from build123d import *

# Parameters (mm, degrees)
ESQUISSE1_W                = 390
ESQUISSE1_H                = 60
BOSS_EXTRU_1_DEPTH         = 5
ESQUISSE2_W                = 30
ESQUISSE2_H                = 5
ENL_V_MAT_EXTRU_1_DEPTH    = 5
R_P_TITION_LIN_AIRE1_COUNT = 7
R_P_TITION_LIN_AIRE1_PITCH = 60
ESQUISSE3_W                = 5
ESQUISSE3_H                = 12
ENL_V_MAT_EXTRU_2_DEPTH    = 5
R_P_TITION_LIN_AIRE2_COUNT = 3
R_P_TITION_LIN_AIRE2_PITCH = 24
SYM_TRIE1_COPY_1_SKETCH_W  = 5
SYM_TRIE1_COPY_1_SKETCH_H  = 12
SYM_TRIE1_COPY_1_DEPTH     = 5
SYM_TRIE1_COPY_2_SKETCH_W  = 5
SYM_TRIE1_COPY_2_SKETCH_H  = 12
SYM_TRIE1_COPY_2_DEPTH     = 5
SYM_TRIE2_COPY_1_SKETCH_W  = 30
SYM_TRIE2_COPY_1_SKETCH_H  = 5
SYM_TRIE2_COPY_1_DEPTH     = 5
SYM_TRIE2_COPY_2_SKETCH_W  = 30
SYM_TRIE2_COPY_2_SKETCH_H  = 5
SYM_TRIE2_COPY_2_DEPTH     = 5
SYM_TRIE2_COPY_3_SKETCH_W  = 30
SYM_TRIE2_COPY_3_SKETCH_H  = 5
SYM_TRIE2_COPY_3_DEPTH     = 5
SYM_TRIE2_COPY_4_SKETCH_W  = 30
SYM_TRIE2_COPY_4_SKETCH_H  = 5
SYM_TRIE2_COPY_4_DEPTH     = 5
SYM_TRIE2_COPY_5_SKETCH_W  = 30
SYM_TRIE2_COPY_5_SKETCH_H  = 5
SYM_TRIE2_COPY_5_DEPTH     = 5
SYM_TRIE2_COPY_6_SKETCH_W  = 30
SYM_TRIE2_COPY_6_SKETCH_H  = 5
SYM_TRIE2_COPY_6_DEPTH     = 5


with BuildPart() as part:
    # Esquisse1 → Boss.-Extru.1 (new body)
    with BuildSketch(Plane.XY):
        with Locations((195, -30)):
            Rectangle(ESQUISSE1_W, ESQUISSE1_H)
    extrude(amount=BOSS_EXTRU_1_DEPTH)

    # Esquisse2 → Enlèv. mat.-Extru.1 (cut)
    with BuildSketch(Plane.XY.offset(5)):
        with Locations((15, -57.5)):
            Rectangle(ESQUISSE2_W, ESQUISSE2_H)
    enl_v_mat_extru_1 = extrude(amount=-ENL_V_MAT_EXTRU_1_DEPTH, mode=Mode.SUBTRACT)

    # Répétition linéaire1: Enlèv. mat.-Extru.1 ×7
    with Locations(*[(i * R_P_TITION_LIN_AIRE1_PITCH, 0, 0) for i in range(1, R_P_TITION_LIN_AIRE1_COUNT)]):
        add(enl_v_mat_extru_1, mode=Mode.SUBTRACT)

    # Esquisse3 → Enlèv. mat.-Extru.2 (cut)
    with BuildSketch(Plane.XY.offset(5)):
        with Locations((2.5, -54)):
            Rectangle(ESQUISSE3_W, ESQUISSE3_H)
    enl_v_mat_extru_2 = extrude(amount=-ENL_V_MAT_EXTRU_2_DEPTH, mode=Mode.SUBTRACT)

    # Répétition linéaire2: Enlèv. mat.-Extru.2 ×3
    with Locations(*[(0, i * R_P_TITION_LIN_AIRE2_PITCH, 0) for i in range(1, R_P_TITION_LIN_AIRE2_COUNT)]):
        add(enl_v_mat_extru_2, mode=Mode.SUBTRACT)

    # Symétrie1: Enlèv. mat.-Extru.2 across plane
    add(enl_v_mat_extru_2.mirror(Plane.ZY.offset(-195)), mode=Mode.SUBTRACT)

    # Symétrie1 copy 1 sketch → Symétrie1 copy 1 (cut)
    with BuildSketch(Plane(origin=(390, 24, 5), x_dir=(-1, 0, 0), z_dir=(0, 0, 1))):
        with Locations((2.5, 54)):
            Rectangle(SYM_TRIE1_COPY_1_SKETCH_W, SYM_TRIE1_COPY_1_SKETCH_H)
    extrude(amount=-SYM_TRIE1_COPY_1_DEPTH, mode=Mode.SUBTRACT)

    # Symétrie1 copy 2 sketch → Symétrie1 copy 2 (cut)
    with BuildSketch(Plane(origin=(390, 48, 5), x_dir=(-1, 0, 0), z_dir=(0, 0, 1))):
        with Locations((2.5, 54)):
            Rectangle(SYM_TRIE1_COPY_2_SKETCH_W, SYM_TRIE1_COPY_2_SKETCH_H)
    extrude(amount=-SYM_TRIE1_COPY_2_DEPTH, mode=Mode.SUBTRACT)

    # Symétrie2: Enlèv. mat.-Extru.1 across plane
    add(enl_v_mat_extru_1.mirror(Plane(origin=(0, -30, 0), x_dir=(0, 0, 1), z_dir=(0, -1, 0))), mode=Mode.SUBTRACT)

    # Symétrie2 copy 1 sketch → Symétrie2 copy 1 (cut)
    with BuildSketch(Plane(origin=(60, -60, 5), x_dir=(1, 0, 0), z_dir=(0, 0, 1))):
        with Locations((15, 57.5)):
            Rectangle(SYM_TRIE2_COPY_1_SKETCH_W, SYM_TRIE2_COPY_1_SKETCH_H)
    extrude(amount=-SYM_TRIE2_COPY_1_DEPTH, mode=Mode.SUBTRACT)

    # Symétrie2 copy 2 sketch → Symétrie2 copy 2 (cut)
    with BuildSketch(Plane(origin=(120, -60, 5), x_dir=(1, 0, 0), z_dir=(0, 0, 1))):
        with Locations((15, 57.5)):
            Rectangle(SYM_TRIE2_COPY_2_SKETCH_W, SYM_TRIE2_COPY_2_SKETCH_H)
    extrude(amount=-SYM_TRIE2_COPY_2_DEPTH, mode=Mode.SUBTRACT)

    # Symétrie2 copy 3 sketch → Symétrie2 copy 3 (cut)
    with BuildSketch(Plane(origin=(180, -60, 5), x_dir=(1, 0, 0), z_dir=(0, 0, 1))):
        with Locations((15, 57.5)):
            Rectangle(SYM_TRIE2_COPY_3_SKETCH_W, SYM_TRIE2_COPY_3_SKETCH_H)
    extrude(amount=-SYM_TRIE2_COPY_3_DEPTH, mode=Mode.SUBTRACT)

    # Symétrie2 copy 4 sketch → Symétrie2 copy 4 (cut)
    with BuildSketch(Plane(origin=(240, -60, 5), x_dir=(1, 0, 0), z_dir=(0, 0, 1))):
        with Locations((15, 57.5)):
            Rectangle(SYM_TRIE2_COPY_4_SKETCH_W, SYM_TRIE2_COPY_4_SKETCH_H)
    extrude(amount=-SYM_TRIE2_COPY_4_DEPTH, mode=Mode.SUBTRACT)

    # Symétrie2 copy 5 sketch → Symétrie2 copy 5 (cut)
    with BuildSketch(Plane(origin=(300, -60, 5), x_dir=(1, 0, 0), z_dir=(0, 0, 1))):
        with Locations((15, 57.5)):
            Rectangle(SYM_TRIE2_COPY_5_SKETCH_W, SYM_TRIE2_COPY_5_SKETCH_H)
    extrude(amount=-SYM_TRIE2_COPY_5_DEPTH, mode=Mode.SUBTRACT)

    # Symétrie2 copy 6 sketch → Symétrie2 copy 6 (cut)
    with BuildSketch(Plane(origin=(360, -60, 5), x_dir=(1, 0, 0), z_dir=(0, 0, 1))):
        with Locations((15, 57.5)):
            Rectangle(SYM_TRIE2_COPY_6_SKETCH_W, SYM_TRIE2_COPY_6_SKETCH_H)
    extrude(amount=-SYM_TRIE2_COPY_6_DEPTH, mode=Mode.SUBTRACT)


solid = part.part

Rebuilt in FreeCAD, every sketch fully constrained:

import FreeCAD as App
import Part
import Sketcher
from FreeCAD import Vector

doc = App.newDocument("Part")
body = doc.addObject("PartDesign::Body", "Body")

sketch1 = body.newObject("Sketcher::SketchObject", "Sketch")
sketch1.AttachmentSupport = (doc.getObject("XY_Plane"), [""])
sketch1.MapMode = "FlatFace"
sketch1.addGeometry([
    Part.LineSegment(Vector(0, 0, 0), Vector(0, -60, 0)),
    Part.LineSegment(Vector(0, -60, 0), Vector(390, -60, 0)),
    Part.LineSegment(Vector(390, -60, 0), Vector(390, 0, 0)),
    Part.LineSegment(Vector(390, 0, 0), Vector(0, 0, 0)),
], False)
sketch1.addConstraint([
    Sketcher.Constraint("Coincident", 0, 2, 1, 1),
    Sketcher.Constraint("Coincident", 1, 2, 2, 1),
    Sketcher.Constraint("Coincident", 2, 2, 3, 1),
    Sketcher.Constraint("Coincident", 3, 2, 0, 1),
    Sketcher.Constraint("Vertical", 0),
    Sketcher.Constraint("Horizontal", 1),
    Sketcher.Constraint("Vertical", 2),
    Sketcher.Constraint("Horizontal", 3),
    Sketcher.Constraint("Coincident", 3, 2, -1, 1),
    Sketcher.Constraint("DistanceX", 1, 1, 1, 2, 390.0),
    Sketcher.Constraint("DistanceY", 0, 2, 0, 1, 60.0),
])
pad1 = body.newObject("PartDesign::Pad", "Pad")
pad1.Profile = sketch1
pad1.Length = 5

sketch2 = body.newObject("Sketcher::SketchObject", "Sketch001")
sketch2.AttachmentSupport = (doc.getObject("XY_Plane"), [""])
sketch2.MapMode = "FlatFace"
sketch2.AttachmentOffset = App.Placement(Vector(0, 0, 5), App.Rotation())
sketch2.addGeometry([
    Part.LineSegment(Vector(0, -55, 0), Vector(0, -60, 0)),
    Part.LineSegment(Vector(0, -60, 0), Vector(30, -60, 0)),
    Part.LineSegment(Vector(30, -60, 0), Vector(30, -55, 0)),
    Part.LineSegment(Vector(30, -55, 0), Vector(0, -55, 0)),
], False)
sketch2.addConstraint([
    Sketcher.Constraint("Coincident", 0, 2, 1, 1),
    Sketcher.Constraint("Coincident", 1, 2, 2, 1),
    Sketcher.Constraint("Coincident", 2, 2, 3, 1),
    Sketcher.Constraint("Coincident", 3, 2, 0, 1),
    Sketcher.Constraint("Vertical", 0),
    Sketcher.Constraint("Horizontal", 1),
    Sketcher.Constraint("Vertical", 2),
    Sketcher.Constraint("Horizontal", 3),
    Sketcher.Constraint("PointOnObject", 0, 2, -2),
    Sketcher.Constraint("DistanceX", 1, 1, 1, 2, 30.0),
    Sketcher.Constraint("DistanceY", 0, 2, 0, 1, 5.0),
    Sketcher.Constraint("DistanceY", 0, 2, -1, 1, 60.0),
])
pocket1 = body.newObject("PartDesign::Pocket", "Pocket")
pocket1.Profile = sketch2
pocket1.Length = 5
doc.recompute()

linearpattern = body.newObject("PartDesign::LinearPattern", "LinearPattern")
linearpattern.Originals = [pocket1]
linearpattern.Direction = (doc.getObject("X_Axis"), [""])
linearpattern.Mode = "offset"
linearpattern.Offset = 60
linearpattern.Occurrences = 7
body.Tip = linearpattern

sketch3 = body.newObject("Sketcher::SketchObject", "Sketch002")
sketch3.AttachmentSupport = (doc.getObject("XY_Plane"), [""])
sketch3.MapMode = "FlatFace"
sketch3.AttachmentOffset = App.Placement(Vector(0, 0, 5), App.Rotation())
sketch3.addGeometry([
    Part.LineSegment(Vector(0, -48, 0), Vector(0, -60, 0)),
    Part.LineSegment(Vector(0, -60, 0), Vector(5, -60, 0)),
    Part.LineSegment(Vector(5, -60, 0), Vector(5, -48, 0)),
    Part.LineSegment(Vector(5, -48, 0), Vector(0, -48, 0)),
], False)
sketch3.addConstraint([
    Sketcher.Constraint("Coincident", 0, 2, 1, 1),
    Sketcher.Constraint("Coincident", 1, 2, 2, 1),
    Sketcher.Constraint("Coincident", 2, 2, 3, 1),
    Sketcher.Constraint("Coincident", 3, 2, 0, 1),
    Sketcher.Constraint("Vertical", 0),
    Sketcher.Constraint("Horizontal", 1),
    Sketcher.Constraint("Vertical", 2),
    Sketcher.Constraint("Horizontal", 3),
    Sketcher.Constraint("PointOnObject", 0, 2, -2),
    Sketcher.Constraint("DistanceX", 1, 1, 1, 2, 5.0),
    Sketcher.Constraint("DistanceY", 0, 2, 0, 1, 12.0),
    Sketcher.Constraint("DistanceY", 0, 2, -1, 1, 60.0),
])
pocket2 = body.newObject("PartDesign::Pocket", "Pocket001")
pocket2.Profile = sketch3
pocket2.Length = 5
doc.recompute()

linearpattern2 = body.newObject("PartDesign::LinearPattern", "LinearPattern001")
linearpattern2.Originals = [pocket2]
linearpattern2.Direction = (doc.getObject("Y_Axis"), [""])
linearpattern2.Mode = "offset"
linearpattern2.Offset = 24
linearpattern2.Occurrences = 3
body.Tip = linearpattern2
doc.recompute()

datumplane = body.newObject("PartDesign::Plane", "DatumPlane")
datumplane.AttachmentSupport = (doc.getObject("YZ_Plane"), [""])
datumplane.MapMode = "FlatFace"
datumplane.AttachmentOffset = App.Placement(Vector(0, 0, 195), App.Rotation())
mirrored = body.newObject("PartDesign::Mirrored", "Mirrored")
mirrored.Originals = [pocket2]
mirrored.MirrorPlane = (datumplane, [""])
body.Tip = mirrored

sketch4 = body.newObject("Sketcher::SketchObject", "Sketch003")
sketch4.AttachmentSupport = (doc.getObject("XY_Plane"), [""])
sketch4.MapMode = "FlatFace"
sketch4.AttachmentOffset = App.Placement(Vector(0, 0, 5), App.Rotation())
sketch4.addGeometry([
    Part.LineSegment(Vector(390, -36, 0), Vector(390, -24, 0)),
    Part.LineSegment(Vector(390, -24, 0), Vector(385, -24, 0)),
    Part.LineSegment(Vector(385, -24, 0), Vector(385, -36, 0)),
    Part.LineSegment(Vector(385, -36, 0), Vector(390, -36, 0)),
], False)
sketch4.addConstraint([
    Sketcher.Constraint("Coincident", 0, 2, 1, 1),
    Sketcher.Constraint("Coincident", 1, 2, 2, 1),
    Sketcher.Constraint("Coincident", 2, 2, 3, 1),
    Sketcher.Constraint("Coincident", 3, 2, 0, 1),
    Sketcher.Constraint("Vertical", 0),
    Sketcher.Constraint("Horizontal", 1),
    Sketcher.Constraint("Vertical", 2),
    Sketcher.Constraint("Horizontal", 3),
    Sketcher.Constraint("DistanceX", 1, 2, 1, 1, 5.0),
    Sketcher.Constraint("DistanceY", 0, 1, 0, 2, 12.0),
    Sketcher.Constraint("DistanceX", -1, 1, 0, 2, 390.0),
    Sketcher.Constraint("DistanceY", 0, 2, -1, 1, 24.0),
])
pocket3 = body.newObject("PartDesign::Pocket", "Pocket002")
pocket3.Profile = sketch4
pocket3.Length = 5

sketch5 = body.newObject("Sketcher::SketchObject", "Sketch004")
sketch5.AttachmentSupport = (doc.getObject("XY_Plane"), [""])
sketch5.MapMode = "FlatFace"
sketch5.AttachmentOffset = App.Placement(Vector(0, 0, 5), App.Rotation())
sketch5.addGeometry([
    Part.LineSegment(Vector(390, -12, 0), Vector(390, 0, 0)),
    Part.LineSegment(Vector(390, 0, 0), Vector(385, 0, 0)),
    Part.LineSegment(Vector(385, 0, 0), Vector(385, -12, 0)),
    Part.LineSegment(Vector(385, -12, 0), Vector(390, -12, 0)),
], False)
sketch5.addConstraint([
    Sketcher.Constraint("Coincident", 0, 2, 1, 1),
    Sketcher.Constraint("Coincident", 1, 2, 2, 1),
    Sketcher.Constraint("Coincident", 2, 2, 3, 1),
    Sketcher.Constraint("Coincident", 3, 2, 0, 1),
    Sketcher.Constraint("Vertical", 0),
    Sketcher.Constraint("Horizontal", 1),
    Sketcher.Constraint("Vertical", 2),
    Sketcher.Constraint("Horizontal", 3),
    Sketcher.Constraint("PointOnObject", 0, 2, -1),
    Sketcher.Constraint("DistanceX", 1, 2, 1, 1, 5.0),
    Sketcher.Constraint("DistanceY", 0, 1, 0, 2, 12.0),
    Sketcher.Constraint("DistanceX", -1, 1, 0, 2, 390.0),
])
pocket4 = body.newObject("PartDesign::Pocket", "Pocket003")
pocket4.Profile = sketch5
pocket4.Length = 5
doc.recompute()

datumplane2 = body.newObject("PartDesign::Plane", "DatumPlane001")
datumplane2.AttachmentSupport = (doc.getObject("XZ_Plane"), [""])
datumplane2.MapMode = "FlatFace"
datumplane2.AttachmentOffset = App.Placement(Vector(0, 0, 30), App.Rotation())
mirrored2 = body.newObject("PartDesign::Mirrored", "Mirrored001")
mirrored2.Originals = [pocket1]
mirrored2.MirrorPlane = (datumplane2, [""])
body.Tip = mirrored2

sketch6 = body.newObject("Sketcher::SketchObject", "Sketch005")
sketch6.AttachmentSupport = (doc.getObject("XY_Plane"), [""])
sketch6.MapMode = "FlatFace"
sketch6.AttachmentOffset = App.Placement(Vector(0, 0, 5), App.Rotation())
sketch6.addGeometry([
    Part.LineSegment(Vector(60, 0, 0), Vector(60, -5, 0)),
    Part.LineSegment(Vector(60, -5, 0), Vector(90, -5, 0)),
    Part.LineSegment(Vector(90, -5, 0), Vector(90, 0, 0)),
    Part.LineSegment(Vector(90, 0, 0), Vector(60, 0, 0)),
], False)
sketch6.addConstraint([
    Sketcher.Constraint("Coincident", 0, 2, 1, 1),
    Sketcher.Constraint("Coincident", 1, 2, 2, 1),
    Sketcher.Constraint("Coincident", 2, 2, 3, 1),
    Sketcher.Constraint("Coincident", 3, 2, 0, 1),
    Sketcher.Constraint("Vertical", 0),
    Sketcher.Constraint("Horizontal", 1),
    Sketcher.Constraint("Vertical", 2),
    Sketcher.Constraint("Horizontal", 3),
    Sketcher.Constraint("PointOnObject", 2, 2, -1),
    Sketcher.Constraint("DistanceX", 1, 1, 1, 2, 30.0),
    Sketcher.Constraint("DistanceY", 0, 2, 0, 1, 5.0),
    Sketcher.Constraint("DistanceX", -1, 1, 0, 2, 60.0),
])
pocket5 = body.newObject("PartDesign::Pocket", "Pocket004")
pocket5.Profile = sketch6
pocket5.Length = 5

sketch7 = body.newObject("Sketcher::SketchObject", "Sketch006")
sketch7.AttachmentSupport = (doc.getObject("XY_Plane"), [""])
sketch7.MapMode = "FlatFace"
sketch7.AttachmentOffset = App.Placement(Vector(0, 0, 5), App.Rotation())
sketch7.addGeometry([
    Part.LineSegment(Vector(120, 0, 0), Vector(120, -5, 0)),
    Part.LineSegment(Vector(120, -5, 0), Vector(150, -5, 0)),
    Part.LineSegment(Vector(150, -5, 0), Vector(150, 0, 0)),
    Part.LineSegment(Vector(150, 0, 0), Vector(120, 0, 0)),
], False)
sketch7.addConstraint([
    Sketcher.Constraint("Coincident", 0, 2, 1, 1),
    Sketcher.Constraint("Coincident", 1, 2, 2, 1),
    Sketcher.Constraint("Coincident", 2, 2, 3, 1),
    Sketcher.Constraint("Coincident", 3, 2, 0, 1),
    Sketcher.Constraint("Vertical", 0),
    Sketcher.Constraint("Horizontal", 1),
    Sketcher.Constraint("Vertical", 2),
    Sketcher.Constraint("Horizontal", 3),
    Sketcher.Constraint("PointOnObject", 2, 2, -1),
    Sketcher.Constraint("DistanceX", 1, 1, 1, 2, 30.0),
    Sketcher.Constraint("DistanceY", 0, 2, 0, 1, 5.0),
    Sketcher.Constraint("DistanceX", -1, 1, 0, 2, 120.0),
])
pocket6 = body.newObject("PartDesign::Pocket", "Pocket005")
pocket6.Profile = sketch7
pocket6.Length = 5

sketch8 = body.newObject("Sketcher::SketchObject", "Sketch007")
sketch8.AttachmentSupport = (doc.getObject("XY_Plane"), [""])
sketch8.MapMode = "FlatFace"
sketch8.AttachmentOffset = App.Placement(Vector(0, 0, 5), App.Rotation())
sketch8.addGeometry([
    Part.LineSegment(Vector(180, 0, 0), Vector(180, -5, 0)),
    Part.LineSegment(Vector(180, -5, 0), Vector(210, -5, 0)),
    Part.LineSegment(Vector(210, -5, 0), Vector(210, 0, 0)),
    Part.LineSegment(Vector(210, 0, 0), Vector(180, 0, 0)),
], False)
sketch8.addConstraint([
    Sketcher.Constraint("Coincident", 0, 2, 1, 1),
    Sketcher.Constraint("Coincident", 1, 2, 2, 1),
    Sketcher.Constraint("Coincident", 2, 2, 3, 1),
    Sketcher.Constraint("Coincident", 3, 2, 0, 1),
    Sketcher.Constraint("Vertical", 0),
    Sketcher.Constraint("Horizontal", 1),
    Sketcher.Constraint("Vertical", 2),
    Sketcher.Constraint("Horizontal", 3),
    Sketcher.Constraint("PointOnObject", 2, 2, -1),
    Sketcher.Constraint("DistanceX", 1, 1, 1, 2, 30.0),
    Sketcher.Constraint("DistanceY", 0, 2, 0, 1, 5.0),
    Sketcher.Constraint("DistanceX", -1, 1, 0, 2, 180.0),
])
pocket7 = body.newObject("PartDesign::Pocket", "Pocket006")
pocket7.Profile = sketch8
pocket7.Length = 5

sketch9 = body.newObject("Sketcher::SketchObject", "Sketch008")
sketch9.AttachmentSupport = (doc.getObject("XY_Plane"), [""])
sketch9.MapMode = "FlatFace"
sketch9.AttachmentOffset = App.Placement(Vector(0, 0, 5), App.Rotation())
sketch9.addGeometry([
    Part.LineSegment(Vector(240, 0, 0), Vector(240, -5, 0)),
    Part.LineSegment(Vector(240, -5, 0), Vector(270, -5, 0)),
    Part.LineSegment(Vector(270, -5, 0), Vector(270, 0, 0)),
    Part.LineSegment(Vector(270, 0, 0), Vector(240, 0, 0)),
], False)
sketch9.addConstraint([
    Sketcher.Constraint("Coincident", 0, 2, 1, 1),
    Sketcher.Constraint("Coincident", 1, 2, 2, 1),
    Sketcher.Constraint("Coincident", 2, 2, 3, 1),
    Sketcher.Constraint("Coincident", 3, 2, 0, 1),
    Sketcher.Constraint("Vertical", 0),
    Sketcher.Constraint("Horizontal", 1),
    Sketcher.Constraint("Vertical", 2),
    Sketcher.Constraint("Horizontal", 3),
    Sketcher.Constraint("PointOnObject", 2, 2, -1),
    Sketcher.Constraint("DistanceX", 1, 1, 1, 2, 30.0),
    Sketcher.Constraint("DistanceY", 0, 2, 0, 1, 5.0),
    Sketcher.Constraint("DistanceX", -1, 1, 0, 2, 240.0),
])
pocket8 = body.newObject("PartDesign::Pocket", "Pocket007")
pocket8.Profile = sketch9
pocket8.Length = 5

sketch10 = body.newObject("Sketcher::SketchObject", "Sketch009")
sketch10.AttachmentSupport = (doc.getObject("XY_Plane"), [""])
sketch10.MapMode = "FlatFace"
sketch10.AttachmentOffset = App.Placement(Vector(0, 0, 5), App.Rotation())
sketch10.addGeometry([
    Part.LineSegment(Vector(300, 0, 0), Vector(300, -5, 0)),
    Part.LineSegment(Vector(300, -5, 0), Vector(330, -5, 0)),
    Part.LineSegment(Vector(330, -5, 0), Vector(330, 0, 0)),
    Part.LineSegment(Vector(330, 0, 0), Vector(300, 0, 0)),
], False)
sketch10.addConstraint([
    Sketcher.Constraint("Coincident", 0, 2, 1, 1),
    Sketcher.Constraint("Coincident", 1, 2, 2, 1),
    Sketcher.Constraint("Coincident", 2, 2, 3, 1),
    Sketcher.Constraint("Coincident", 3, 2, 0, 1),
    Sketcher.Constraint("Vertical", 0),
    Sketcher.Constraint("Horizontal", 1),
    Sketcher.Constraint("Vertical", 2),
    Sketcher.Constraint("Horizontal", 3),
    Sketcher.Constraint("PointOnObject", 2, 2, -1),
    Sketcher.Constraint("DistanceX", 1, 1, 1, 2, 30.0),
    Sketcher.Constraint("DistanceY", 0, 2, 0, 1, 5.0),
    Sketcher.Constraint("DistanceX", -1, 1, 0, 2, 300.0),
])
pocket9 = body.newObject("PartDesign::Pocket", "Pocket008")
pocket9.Profile = sketch10
pocket9.Length = 5

sketch11 = body.newObject("Sketcher::SketchObject", "Sketch010")
sketch11.AttachmentSupport = (doc.getObject("XY_Plane"), [""])
sketch11.MapMode = "FlatFace"
sketch11.AttachmentOffset = App.Placement(Vector(0, 0, 5), App.Rotation())
sketch11.addGeometry([
    Part.LineSegment(Vector(360, 0, 0), Vector(360, -5, 0)),
    Part.LineSegment(Vector(360, -5, 0), Vector(390, -5, 0)),
    Part.LineSegment(Vector(390, -5, 0), Vector(390, 0, 0)),
    Part.LineSegment(Vector(390, 0, 0), Vector(360, 0, 0)),
], False)
sketch11.addConstraint([
    Sketcher.Constraint("Coincident", 0, 2, 1, 1),
    Sketcher.Constraint("Coincident", 1, 2, 2, 1),
    Sketcher.Constraint("Coincident", 2, 2, 3, 1),
    Sketcher.Constraint("Coincident", 3, 2, 0, 1),
    Sketcher.Constraint("Vertical", 0),
    Sketcher.Constraint("Horizontal", 1),
    Sketcher.Constraint("Vertical", 2),
    Sketcher.Constraint("Horizontal", 3),
    Sketcher.Constraint("PointOnObject", 2, 2, -1),
    Sketcher.Constraint("DistanceX", 1, 1, 1, 2, 30.0),
    Sketcher.Constraint("DistanceY", 0, 2, 0, 1, 5.0),
    Sketcher.Constraint("DistanceX", -1, 1, 0, 2, 360.0),
])
pocket10 = body.newObject("PartDesign::Pocket", "Pocket009")
pocket10.Profile = sketch11
pocket10.Length = 5

doc.recompute()
